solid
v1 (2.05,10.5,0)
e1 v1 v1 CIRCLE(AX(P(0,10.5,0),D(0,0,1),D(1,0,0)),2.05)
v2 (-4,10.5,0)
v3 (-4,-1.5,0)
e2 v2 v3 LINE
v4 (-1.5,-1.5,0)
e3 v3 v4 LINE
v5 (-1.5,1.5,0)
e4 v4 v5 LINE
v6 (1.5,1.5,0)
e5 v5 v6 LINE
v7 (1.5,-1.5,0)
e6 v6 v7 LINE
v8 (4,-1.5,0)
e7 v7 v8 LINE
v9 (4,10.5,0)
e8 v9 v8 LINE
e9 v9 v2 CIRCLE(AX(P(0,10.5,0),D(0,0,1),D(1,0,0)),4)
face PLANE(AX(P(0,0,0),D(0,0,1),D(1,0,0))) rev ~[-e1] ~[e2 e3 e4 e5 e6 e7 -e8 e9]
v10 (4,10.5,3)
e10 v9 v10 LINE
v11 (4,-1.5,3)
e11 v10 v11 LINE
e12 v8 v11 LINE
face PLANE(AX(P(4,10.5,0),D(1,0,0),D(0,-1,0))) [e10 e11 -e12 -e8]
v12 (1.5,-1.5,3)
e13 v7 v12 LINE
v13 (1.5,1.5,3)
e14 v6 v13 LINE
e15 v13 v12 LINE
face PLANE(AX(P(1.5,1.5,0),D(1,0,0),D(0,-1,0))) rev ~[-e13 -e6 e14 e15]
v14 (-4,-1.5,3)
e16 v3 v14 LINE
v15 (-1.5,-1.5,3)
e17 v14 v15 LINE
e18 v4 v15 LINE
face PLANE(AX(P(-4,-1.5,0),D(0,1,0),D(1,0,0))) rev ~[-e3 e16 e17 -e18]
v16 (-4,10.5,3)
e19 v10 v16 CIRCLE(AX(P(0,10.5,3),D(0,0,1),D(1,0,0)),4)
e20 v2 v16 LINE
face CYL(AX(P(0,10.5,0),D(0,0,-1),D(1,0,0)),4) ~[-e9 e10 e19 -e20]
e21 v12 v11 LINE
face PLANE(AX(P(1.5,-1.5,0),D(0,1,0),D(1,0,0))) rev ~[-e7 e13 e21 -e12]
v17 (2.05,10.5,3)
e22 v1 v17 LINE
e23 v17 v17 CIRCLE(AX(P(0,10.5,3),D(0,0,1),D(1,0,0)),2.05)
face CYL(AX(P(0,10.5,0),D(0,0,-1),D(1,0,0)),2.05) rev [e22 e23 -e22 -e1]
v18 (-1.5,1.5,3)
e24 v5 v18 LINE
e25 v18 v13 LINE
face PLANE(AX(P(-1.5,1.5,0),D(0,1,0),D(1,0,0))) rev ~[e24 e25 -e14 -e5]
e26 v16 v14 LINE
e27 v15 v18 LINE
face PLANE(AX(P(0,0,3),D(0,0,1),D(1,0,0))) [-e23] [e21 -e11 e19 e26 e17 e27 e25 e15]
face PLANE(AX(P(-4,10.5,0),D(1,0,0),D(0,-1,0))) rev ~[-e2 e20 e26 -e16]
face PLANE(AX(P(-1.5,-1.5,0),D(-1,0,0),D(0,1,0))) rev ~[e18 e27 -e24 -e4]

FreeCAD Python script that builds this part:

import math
import FreeCAD as App
import Part
import Sketcher

doc = App.newDocument("Part")
body = doc.addObject("PartDesign::Body", "Body")

sketch1 = body.newObject("Sketcher::SketchObject", "Sketch")
sketch1.AttachmentSupport = (doc.getObject("XY_Plane"), [""])
sketch1.MapMode = "FlatFace"
sketch1.addGeometry(Part.LineSegment(App.Vector(-4, -1.5, 0), App.Vector(-1.5, -1.5, 0)), False)
sketch1.addGeometry(Part.LineSegment(App.Vector(-1.5, -1.5, 0), App.Vector(-1.5, 1.5, 0)), False)
sketch1.addGeometry(Part.LineSegment(App.Vector(-1.5, 1.5, 0), App.Vector(1.5, 1.5, 0)), False)
sketch1.addGeometry(Part.LineSegment(App.Vector(1.5, 1.5, 0), App.Vector(1.5, -1.5, 0)), False)
sketch1.addGeometry(Part.LineSegment(App.Vector(1.5, -1.5, 0), App.Vector(4, -1.5, 0)), False)
sketch1.addGeometry(Part.LineSegment(App.Vector(4, -1.5, 0), App.Vector(4, 10.5, 0)), False)
sketch1.addGeometry(Part.ArcOfCircle(Part.Circle(App.Vector(0, 10.5, 0), App.Vector(0, 0, 1), 4), math.radians(0), math.radians(180)), False)
sketch1.addGeometry(Part.LineSegment(App.Vector(-4, 10.5, 0), App.Vector(-4, -1.5, 0)), False)
sketch1.addGeometry(Part.Circle(App.Vector(0, 10.5, 0), App.Vector(0, 0, 1), 2.05), False)
sketch1.addConstraint(Sketcher.Constraint("Coincident", 0, 2, 1, 1))
sketch1.addConstraint(Sketcher.Constraint("Coincident", 1, 2, 2, 1))
sketch1.addConstraint(Sketcher.Constraint("Coincident", 2, 2, 3, 1))
sketch1.addConstraint(Sketcher.Constraint("Coincident", 3, 2, 4, 1))
sketch1.addConstraint(Sketcher.Constraint("Coincident", 4, 2, 5, 1))
sketch1.addConstraint(Sketcher.Constraint("Tangent", 5, 2, 6, 1))
sketch1.addConstraint(Sketcher.Constraint("Tangent", 6, 2, 7, 1))
sketch1.addConstraint(Sketcher.Constraint("Coincident", 7, 2, 0, 1))
sketch1.addConstraint(Sketcher.Constraint("Horizontal", 0))
sketch1.addConstraint(Sketcher.Constraint("Vertical", 1))
sketch1.addConstraint(Sketcher.Constraint("Horizontal", 2))
sketch1.addConstraint(Sketcher.Constraint("Vertical", 3))
sketch1.addConstraint(Sketcher.Constraint("Horizontal", 4))
sketch1.addConstraint(Sketcher.Constraint("Vertical", 5))
sketch1.addConstraint(Sketcher.Constraint("Vertical", 7))
sketch1.addConstraint(Sketcher.Constraint("Coincident", 8, 3, 6, 3))
sketch1.addConstraint(Sketcher.Constraint("Symmetric", 0, 2, 2, 2, -1, 1))
sketch1.addConstraint(Sketcher.Constraint("Symmetric", 4, 2, 7, 2, -2))
sketch1.addConstraint(Sketcher.Constraint("Equal", 2, 1))
sketch1.addConstraint(Sketcher.Constraint("Radius", 6, 4.0))
sketch1.addConstraint(Sketcher.Constraint("Diameter", 8, 4.1))
sketch1.addConstraint(Sketcher.Constraint("DistanceX", 2, 1, 2, 2, 3.0))
sketch1.addConstraint(Sketcher.Constraint("DistanceY", 5, 1, 5, 2, 12.0))
pad1 = body.newObject("PartDesign::Pad", "Pad")
pad1.Profile = sketch1
pad1.Length = 3

doc.recompute()
